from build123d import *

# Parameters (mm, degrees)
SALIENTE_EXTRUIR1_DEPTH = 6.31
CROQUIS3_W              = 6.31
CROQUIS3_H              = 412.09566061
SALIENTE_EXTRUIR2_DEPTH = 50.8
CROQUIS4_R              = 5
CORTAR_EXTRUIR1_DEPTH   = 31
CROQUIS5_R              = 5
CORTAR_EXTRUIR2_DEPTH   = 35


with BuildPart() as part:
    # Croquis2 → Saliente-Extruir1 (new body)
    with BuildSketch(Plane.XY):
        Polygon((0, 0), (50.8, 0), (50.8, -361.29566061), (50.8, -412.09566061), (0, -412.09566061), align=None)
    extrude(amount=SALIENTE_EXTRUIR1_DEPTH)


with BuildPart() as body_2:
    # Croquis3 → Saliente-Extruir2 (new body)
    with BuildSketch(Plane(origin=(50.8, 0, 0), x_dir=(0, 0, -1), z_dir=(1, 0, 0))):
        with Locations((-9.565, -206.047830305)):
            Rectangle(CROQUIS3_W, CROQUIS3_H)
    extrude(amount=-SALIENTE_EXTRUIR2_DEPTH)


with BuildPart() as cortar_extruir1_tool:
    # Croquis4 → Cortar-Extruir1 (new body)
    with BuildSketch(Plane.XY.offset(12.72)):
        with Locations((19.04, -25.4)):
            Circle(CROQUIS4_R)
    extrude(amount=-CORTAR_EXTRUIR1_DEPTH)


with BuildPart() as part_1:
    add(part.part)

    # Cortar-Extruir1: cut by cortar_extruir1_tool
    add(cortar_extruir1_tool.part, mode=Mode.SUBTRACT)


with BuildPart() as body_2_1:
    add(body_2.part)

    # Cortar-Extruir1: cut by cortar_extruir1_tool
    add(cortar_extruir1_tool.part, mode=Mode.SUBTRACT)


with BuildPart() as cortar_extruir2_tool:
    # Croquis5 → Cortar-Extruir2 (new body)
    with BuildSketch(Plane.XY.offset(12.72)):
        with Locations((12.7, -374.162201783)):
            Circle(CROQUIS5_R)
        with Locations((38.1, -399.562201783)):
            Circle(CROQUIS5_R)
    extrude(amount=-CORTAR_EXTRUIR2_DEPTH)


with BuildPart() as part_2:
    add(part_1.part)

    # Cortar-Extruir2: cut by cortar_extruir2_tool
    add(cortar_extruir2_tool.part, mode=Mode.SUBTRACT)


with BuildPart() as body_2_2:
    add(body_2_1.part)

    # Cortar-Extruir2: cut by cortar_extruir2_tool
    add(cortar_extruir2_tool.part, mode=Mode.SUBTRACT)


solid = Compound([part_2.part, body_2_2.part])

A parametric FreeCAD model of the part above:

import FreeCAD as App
import Part
import Sketcher
Q = App.Units.Quantity

doc = App.newDocument("Part")
body = doc.addObject("PartDesign::Body", "Body")

# Sketch on XY plane
sketch1 = body.newObject("Sketcher::SketchObject", "Sketch")
sketch1.AttachmentSupport = (doc.getObject("XY_Plane"), [""])
sketch1.MapMode = "FlatFace"
sketch1.addGeometry(Part.LineSegment(App.Vector(50.8, 0, 0), App.Vector(0, 0, 0)), False)
sketch1.addGeometry(Part.LineSegment(App.Vector(0, 0, 0), App.Vector(0, -412.095661, 0)), False)
sketch1.addGeometry(Part.LineSegment(App.Vector(0, -412.095661, 0), App.Vector(50.8, -412.095661, 0)), False)
sketch1.addGeometry(Part.LineSegment(App.Vector(50.8, -412.095661, 0), App.Vector(50.8, 0, 0)), False)
sketch1.addConstraint(Sketcher.Constraint("Coincident", 0, 2, 1, 1))
sketch1.addConstraint(Sketcher.Constraint("Coincident", 1, 2, 2, 1))
sketch1.addConstraint(Sketcher.Constraint("Coincident", 2, 2, 3, 1))
sketch1.addConstraint(Sketcher.Constraint("Coincident", 3, 2, 0, 1))
sketch1.addConstraint(Sketcher.Constraint("Horizontal", 0))
sketch1.addConstraint(Sketcher.Constraint("Vertical", 1))
sketch1.addConstraint(Sketcher.Constraint("Horizontal", 2))
sketch1.addConstraint(Sketcher.Constraint("Vertical", 3))
sketch1.addConstraint(Sketcher.Constraint("Coincident", 0, 2, -1, 1))
sketch1.addConstraint(Sketcher.Constraint("DistanceX", 0, 2, 0, 1, Q("50.8 mm")))
sketch1.addConstraint(Sketcher.Constraint("DistanceY", 1, 2, 1, 1, Q("412.095661 mm")))
pad1 = body.newObject("PartDesign::Pad", "Pad")
pad1.Profile = sketch1
pad1.Length = 6.31
body2 = doc.addObject("PartDesign::Body", "Body001")

# Sketch on YZ plane
sketch2 = body2.newObject("Sketcher::SketchObject", "Sketch001")
sketch2.AttachmentSupport = (doc.getObject("YZ_Plane001"), [""])
sketch2.MapMode = "FlatFace"
sketch2.AttachmentOffset = App.Placement(App.Vector(0, 0, 50.8), App.Rotation())
sketch2.addGeometry(Part.LineSegment(App.Vector(0, 12.72, 0), App.Vector(-412.095661, 12.72, 0)), False)
sketch2.addGeometry(Part.LineSegment(App.Vector(-412.095661, 12.72, 0), App.Vector(-412.095661, 6.41, 0)), False)
sketch2.addGeometry(Part.LineSegment(App.Vector(-412.095661, 6.41, 0), App.Vector(0, 6.41, 0)), False)
sketch2.addGeometry(Part.LineSegment(App.Vector(0, 6.41, 0), App.Vector(0, 12.72, 0)), False)
sketch2.addConstraint(Sketcher.Constraint("Coincident", 0, 2, 1, 1))
sketch2.addConstraint(Sketcher.Constraint("Coincident", 1, 2, 2, 1))
sketch2.addConstraint(Sketcher.Constraint("Coincident", 2, 2, 3, 1))
sketch2.addConstraint(Sketcher.Constraint("Coincident", 3, 2, 0, 1))
sketch2.addConstraint(Sketcher.Constraint("Horizontal", 0))
sketch2.addConstraint(Sketcher.Constraint("Vertical", 1))
sketch2.addConstraint(Sketcher.Constraint("Horizontal", 2))
sketch2.addConstraint(Sketcher.Constraint("Vertical", 3))
sketch2.addConstraint(Sketcher.Constraint("PointOnObject", 2, 2, -2))
sketch2.addConstraint(Sketcher.Constraint("DistanceY", 1, 2, 1, 1, Q("6.31 mm")))
sketch2.addConstraint(Sketcher.Constraint("DistanceY", -1, 1, 0, 2, Q("12.72 mm")))
sketch2.addConstraint(Sketcher.Constraint("DistanceX", 0, 2, 0, 1, Q("412.095661 mm")))
pad2 = body2.newObject("PartDesign::Pad", "Pad001")
pad2.Profile = sketch2
pad2.Length = 50.8
pad2.Reversed = True
body3 = doc.addObject("PartDesign::Body", "Body002")

# Sketch on XY plane
sketch3 = body3.newObject("Sketcher::SketchObject", "Sketch002")
sketch3.AttachmentSupport = (doc.getObject("XY_Plane002"), [""])
sketch3.MapMode = "FlatFace"
sketch3.AttachmentOffset = App.Placement(App.Vector(0, 0, 12.72), App.Rotation())
sketch3.addGeometry(Part.Circle(App.Vector(19.04, -25.4, 0), App.Vector(0, 0, 1), 5), False)
sketch3.addConstraint(Sketcher.Constraint("Diameter", 0, Q("10 mm")))
sketch3.addConstraint(Sketcher.Constraint("DistanceY", 0, 3, -1, 1, Q("25.4 mm")))
sketch3.addConstraint(Sketcher.Constraint("DistanceX", -1, 1, 0, 3, Q("19.04 mm")))
pad3 = body3.newObject("PartDesign::Pad", "Pad002")
pad3.Profile = sketch3
pad3.Length = 31
pad3.Reversed = True
doc.recompute()

body4 = doc.addObject("PartDesign::Body", "Body003")
body4.BaseFeature = body3
boolean = body.newObject("PartDesign::Boolean", "Boolean")
boolean.Type = "Cut"
boolean.addObjects([body4])
doc.recompute()

boolean2 = body2.newObject("PartDesign::Boolean", "Boolean001")
boolean2.Type = "Cut"
boolean2.addObjects([body3])
body5 = doc.addObject("PartDesign::Body", "Body004")
body5.AllowCompound = True

# Sketch on XY plane
sketch4 = body5.newObject("Sketcher::SketchObject", "Sketch003")
sketch4.AttachmentSupport = (doc.getObject("XY_Plane004"), [""])
sketch4.MapMode = "FlatFace"
sketch4.AttachmentOffset = App.Placement(App.Vector(0, 0, 12.72), App.Rotation())
sketch4.addGeometry(Part.Circle(App.Vector(12.7, -374.162202, 0), App.Vector(0, 0, 1), 5), False)
sketch4.addGeometry(Part.Circle(App.Vector(38.1, -399.562202, 0), App.Vector(0, 0, 1), 5), False)
sketch4.addConstraint(Sketcher.Constraint("Equal", 0, 1))
sketch4.addConstraint(Sketcher.Constraint("Diameter", 0, Q("10 mm")))
sketch4.addConstraint(Sketcher.Constraint("DistanceX", -1, 1, 0, 3, Q("12.7 mm")))
sketch4.addConstraint(Sketcher.Constraint("DistanceX", -1, 1, 1, 3, Q("38.1 mm")))
sketch4.addConstraint(Sketcher.Constraint("DistanceY", 1, 3, 0, 3, Q("25.4 mm")))
sketch4.addConstraint(Sketcher.Constraint("DistanceY", 0, 3, -1, 1, Q("374.162202 mm")))
pad4 = body5.newObject("PartDesign::Pad", "Pad003")
pad4.Profile = sketch4
pad4.Length = 35
pad4.Reversed = True
doc.recompute()

body6 = doc.addObject("PartDesign::Body", "Body005")
body6.BaseFeature = body5
boolean3 = body.newObject("PartDesign::Boolean", "Boolean002")
boolean3.Type = "Cut"
boolean3.addObjects([body6])
doc.recompute()

boolean4 = body2.newObject("PartDesign::Boolean", "Boolean003")
boolean4.Type = "Cut"
boolean4.addObjects([body5])

doc.recompute()
